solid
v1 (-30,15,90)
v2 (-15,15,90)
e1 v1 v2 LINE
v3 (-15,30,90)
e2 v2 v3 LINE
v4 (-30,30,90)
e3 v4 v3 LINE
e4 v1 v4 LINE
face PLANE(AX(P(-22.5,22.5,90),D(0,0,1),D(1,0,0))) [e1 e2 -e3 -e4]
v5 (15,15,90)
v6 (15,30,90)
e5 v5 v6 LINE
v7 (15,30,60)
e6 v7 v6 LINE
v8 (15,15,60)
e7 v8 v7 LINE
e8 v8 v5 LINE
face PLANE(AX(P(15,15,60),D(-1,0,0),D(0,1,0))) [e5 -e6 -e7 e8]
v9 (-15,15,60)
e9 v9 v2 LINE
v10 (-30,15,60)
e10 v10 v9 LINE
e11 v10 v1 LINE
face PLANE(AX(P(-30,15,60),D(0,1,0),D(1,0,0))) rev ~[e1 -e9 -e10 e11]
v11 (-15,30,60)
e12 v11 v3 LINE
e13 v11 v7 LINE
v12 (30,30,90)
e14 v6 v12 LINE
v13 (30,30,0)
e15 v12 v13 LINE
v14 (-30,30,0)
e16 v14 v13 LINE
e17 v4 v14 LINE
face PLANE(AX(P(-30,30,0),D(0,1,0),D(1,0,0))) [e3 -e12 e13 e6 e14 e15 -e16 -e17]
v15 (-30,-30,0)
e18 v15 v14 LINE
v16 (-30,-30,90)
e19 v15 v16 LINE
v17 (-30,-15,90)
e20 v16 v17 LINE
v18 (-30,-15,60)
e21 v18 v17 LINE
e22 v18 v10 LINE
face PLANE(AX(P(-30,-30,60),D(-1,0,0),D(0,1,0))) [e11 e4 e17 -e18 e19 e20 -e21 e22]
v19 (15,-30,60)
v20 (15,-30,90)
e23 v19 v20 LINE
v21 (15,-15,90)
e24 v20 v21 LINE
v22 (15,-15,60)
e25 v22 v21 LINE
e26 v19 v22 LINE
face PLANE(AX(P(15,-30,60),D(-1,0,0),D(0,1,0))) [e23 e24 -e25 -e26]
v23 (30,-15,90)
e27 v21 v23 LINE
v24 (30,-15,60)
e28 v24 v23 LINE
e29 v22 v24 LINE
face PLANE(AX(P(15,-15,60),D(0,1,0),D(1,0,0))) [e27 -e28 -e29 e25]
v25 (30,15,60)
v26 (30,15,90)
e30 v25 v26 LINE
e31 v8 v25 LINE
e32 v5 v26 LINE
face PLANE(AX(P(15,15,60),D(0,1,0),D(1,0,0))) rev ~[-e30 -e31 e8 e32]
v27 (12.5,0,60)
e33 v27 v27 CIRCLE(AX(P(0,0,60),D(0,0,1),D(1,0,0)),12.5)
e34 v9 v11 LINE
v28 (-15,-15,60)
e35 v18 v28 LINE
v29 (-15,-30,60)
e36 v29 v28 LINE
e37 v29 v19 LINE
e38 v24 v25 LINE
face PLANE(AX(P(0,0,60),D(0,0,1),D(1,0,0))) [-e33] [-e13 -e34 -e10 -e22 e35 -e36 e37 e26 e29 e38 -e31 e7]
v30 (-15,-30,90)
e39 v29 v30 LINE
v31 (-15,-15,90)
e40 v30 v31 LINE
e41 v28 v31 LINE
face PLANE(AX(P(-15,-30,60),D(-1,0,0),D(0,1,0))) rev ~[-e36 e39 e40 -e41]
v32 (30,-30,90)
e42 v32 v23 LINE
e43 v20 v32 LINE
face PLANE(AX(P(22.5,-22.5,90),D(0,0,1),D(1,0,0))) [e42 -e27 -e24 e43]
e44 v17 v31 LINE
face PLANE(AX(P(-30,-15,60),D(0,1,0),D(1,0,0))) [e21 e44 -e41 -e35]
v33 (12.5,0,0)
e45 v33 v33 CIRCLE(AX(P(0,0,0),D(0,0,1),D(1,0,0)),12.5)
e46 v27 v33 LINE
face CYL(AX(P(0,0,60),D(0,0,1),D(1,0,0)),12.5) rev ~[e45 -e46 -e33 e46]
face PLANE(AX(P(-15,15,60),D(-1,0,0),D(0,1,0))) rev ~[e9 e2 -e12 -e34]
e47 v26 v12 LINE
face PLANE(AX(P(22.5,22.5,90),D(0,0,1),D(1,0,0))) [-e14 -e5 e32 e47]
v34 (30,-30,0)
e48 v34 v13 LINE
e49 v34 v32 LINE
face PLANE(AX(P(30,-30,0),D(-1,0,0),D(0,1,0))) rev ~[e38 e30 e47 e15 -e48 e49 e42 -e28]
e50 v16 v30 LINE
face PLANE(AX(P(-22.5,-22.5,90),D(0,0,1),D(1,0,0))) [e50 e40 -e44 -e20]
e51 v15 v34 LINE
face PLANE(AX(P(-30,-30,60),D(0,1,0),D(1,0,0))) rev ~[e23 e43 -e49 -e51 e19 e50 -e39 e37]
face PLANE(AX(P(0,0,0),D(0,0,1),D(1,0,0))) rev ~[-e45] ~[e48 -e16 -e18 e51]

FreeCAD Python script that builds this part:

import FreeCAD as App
import Part
import Sketcher

V = App.Vector
Q = App.Units.Quantity

doc = App.newDocument("Part")
body = doc.addObject("PartDesign::Body", "Body")

sketch1 = body.newObject("Sketcher::SketchObject", "Sketch")
sketch1.AttachmentSupport = (doc.getObject("XY_Plane"), [""])
sketch1.MapMode = "FlatFace"
sketch1.addGeometry(Part.LineSegment(V(-30, 30, 0), V(-30, -30, 0)), False)
sketch1.addGeometry(Part.LineSegment(V(-30, -30, 0), V(30, -30, 0)), False)
sketch1.addGeometry(Part.LineSegment(V(30, -30, 0), V(30, 30, 0)), False)
sketch1.addGeometry(Part.LineSegment(V(30, 30, 0), V(-30, 30, 0)), False)
sketch1.addConstraint(Sketcher.Constraint("Coincident", 0, 2, 1, 1))
sketch1.addConstraint(Sketcher.Constraint("Coincident", 1, 2, 2, 1))
sketch1.addConstraint(Sketcher.Constraint("Coincident", 2, 2, 3, 1))
sketch1.addConstraint(Sketcher.Constraint("Coincident", 3, 2, 0, 1))
sketch1.addConstraint(Sketcher.Constraint("Vertical", 0))
sketch1.addConstraint(Sketcher.Constraint("Horizontal", 1))
sketch1.addConstraint(Sketcher.Constraint("Vertical", 2))
sketch1.addConstraint(Sketcher.Constraint("Horizontal", 3))
sketch1.addConstraint(Sketcher.Constraint("Symmetric", 0, 2, 2, 2, -1, 1))
sketch1.addConstraint(Sketcher.Constraint("Equal", 3, 0))
sketch1.addConstraint(Sketcher.Constraint("DistanceX", 1, 1, 1, 2, Q("60 mm")))
pad1 = body.newObject("PartDesign::Pad", "Pad")
pad1.Profile = sketch1
pad1.Length = 60

sketch2 = body.newObject("Sketcher::SketchObject", "Sketch001")
sketch2.AttachmentSupport = (doc.getObject("XY_Plane"), [""])
sketch2.MapMode = "FlatFace"
sketch2.AttachmentOffset = App.Placement(V(0, 0, 60), App.Rotation())
sketch2.addGeometry(Part.LineSegment(V(-30, -15, 0), V(-30, -30, 0)), False)
sketch2.addGeometry(Part.LineSegment(V(-30, -30, 0), V(-15, -30, 0)), False)
sketch2.addGeometry(Part.LineSegment(V(-15, -30, 0), V(-15, -15, 0)), False)
sketch2.addGeometry(Part.LineSegment(V(-15, -15, 0), V(-30, -15, 0)), False)
sketch2.addGeometry(Part.LineSegment(V(-30, 30, 0), V(-30, 15, 0)), False)
sketch2.addGeometry(Part.LineSegment(V(-30, 15, 0), V(-15, 15, 0)), False)
sketch2.addGeometry(Part.LineSegment(V(-15, 15, 0), V(-15, 30, 0)), False)
sketch2.addGeometry(Part.LineSegment(V(-15, 30, 0), V(-30, 30, 0)), False)
sketch2.addGeometry(Part.LineSegment(V(15, 30, 0), V(15, 15, 0)), False)
sketch2.addGeometry(Part.LineSegment(V(15, 15, 0), V(30, 15, 0)), False)
sketch2.addGeometry(Part.LineSegment(V(30, 15, 0), V(30, 30, 0)), False)
sketch2.addGeometry(Part.LineSegment(V(30, 30, 0), V(15, 30, 0)), False)
sketch2.addGeometry(Part.LineSegment(V(15, -15, 0), V(15, -30, 0)), False)
sketch2.addGeometry(Part.LineSegment(V(15, -30, 0), V(30, -30, 0)), False)
sketch2.addGeometry(Part.LineSegment(V(30, -30, 0), V(30, -15, 0)), False)
sketch2.addGeometry(Part.LineSegment(V(30, -15, 0), V(15, -15, 0)), False)
sketch2.addConstraint(Sketcher.Constraint("Coincident", 0, 2, 1, 1))
sketch2.addConstraint(Sketcher.Constraint("Coincident", 1, 2, 2, 1))
sketch2.addConstraint(Sketcher.Constraint("Coincident", 2, 2, 3, 1))
sketch2.addConstraint(Sketcher.Constraint("Coincident", 3, 2, 0, 1))
sketch2.addConstraint(Sketcher.Constraint("Coincident", 4, 2, 5, 1))
sketch2.addConstraint(Sketcher.Constraint("Coincident", 5, 2, 6, 1))
sketch2.addConstraint(Sketcher.Constraint("Coincident", 6, 2, 7, 1))
sketch2.addConstraint(Sketcher.Constraint("Coincident", 7, 2, 4, 1))
sketch2.addConstraint(Sketcher.Constraint("Coincident", 8, 2, 9, 1))
sketch2.addConstraint(Sketcher.Constraint("Coincident", 9, 2, 10, 1))
sketch2.addConstraint(Sketcher.Constraint("Coincident", 10, 2, 11, 1))
sketch2.addConstraint(Sketcher.Constraint("Coincident", 11, 2, 8, 1))
sketch2.addConstraint(Sketcher.Constraint("Coincident", 12, 2, 13, 1))
sketch2.addConstraint(Sketcher.Constraint("Coincident", 13, 2, 14, 1))
sketch2.addConstraint(Sketcher.Constraint("Coincident", 14, 2, 15, 1))
sketch2.addConstraint(Sketcher.Constraint("Coincident", 15, 2, 12, 1))
sketch2.addConstraint(Sketcher.Constraint("Vertical", 0))
sketch2.addConstraint(Sketcher.Constraint("Horizontal", 1))
sketch2.addConstraint(Sketcher.Constraint("Vertical", 2))
sketch2.addConstraint(Sketcher.Constraint("Horizontal", 3))
sketch2.addConstraint(Sketcher.Constraint("Vertical", 4))
sketch2.addConstraint(Sketcher.Constraint("Horizontal", 5))
sketch2.addConstraint(Sketcher.Constraint("Vertical", 6))
sketch2.addConstraint(Sketcher.Constraint("Horizontal", 7))
sketch2.addConstraint(Sketcher.Constraint("Vertical", 8))
sketch2.addConstraint(Sketcher.Constraint("Horizontal", 9))
sketch2.addConstraint(Sketcher.Constraint("Vertical", 10))
sketch2.addConstraint(Sketcher.Constraint("Horizontal", 11))
sketch2.addConstraint(Sketcher.Constraint("Vertical", 12))
sketch2.addConstraint(Sketcher.Constraint("Horizontal", 13))
sketch2.addConstraint(Sketcher.Constraint("Vertical", 14))
sketch2.addConstraint(Sketcher.Constraint("Horizontal", 15))
sketch2.addConstraint(Sketcher.Constraint("Symmetric", 2, 2, 8, 2, -1, 1))
sketch2.addConstraint(Sketcher.Constraint("Symmetric", 0, 2, 10, 2, -1, 1))
sketch2.addConstraint(Sketcher.Constraint("Symmetric", 6, 2, 12, 2, -1, 1))
sketch2.addConstraint(Sketcher.Constraint("Symmetric", 4, 2, 14, 2, -1, 1))
sketch2.addConstraint(Sketcher.Constraint("Symmetric", 5, 2, 8, 2, -2))
sketch2.addConstraint(Sketcher.Constraint("Symmetric", 7, 2, 10, 2, -2))
sketch2.addConstraint(Sketcher.Constraint("Equal", 15, 0))
sketch2.addConstraint(Sketcher.Constraint("DistanceX", 1, 1, 1, 2, Q("15 mm")))
sketch2.addConstraint(Sketcher.Constraint("DistanceX", 0, 2, -1, 1, Q("30 mm")))
sketch2.addConstraint(Sketcher.Constraint("DistanceY", 0, 2, -1, 1, Q("30 mm")))
pad2 = body.newObject("PartDesign::Pad", "Pad001")
pad2.Profile = sketch2
pad2.Length = 30

sketch3 = body.newObject("Sketcher::SketchObject", "Sketch002")
sketch3.AttachmentSupport = (doc.getObject("XY_Plane"), [""])
sketch3.MapMode = "FlatFace"
sketch3.AttachmentOffset = App.Placement(V(0, 0, 60), App.Rotation())
sketch3.addGeometry(Part.Circle(V(0, 0, 0), V(0, 0, 1), 12.5), False)
sketch3.addConstraint(Sketcher.Constraint("Coincident", 0, 3, -1, 1))
sketch3.addConstraint(Sketcher.Constraint("Diameter", 0, Q("25 mm")))
pocket1 = body.newObject("PartDesign::Pocket", "Pocket")
pocket1.Profile = sketch3
pocket1.Length = 60

doc.recompute()
